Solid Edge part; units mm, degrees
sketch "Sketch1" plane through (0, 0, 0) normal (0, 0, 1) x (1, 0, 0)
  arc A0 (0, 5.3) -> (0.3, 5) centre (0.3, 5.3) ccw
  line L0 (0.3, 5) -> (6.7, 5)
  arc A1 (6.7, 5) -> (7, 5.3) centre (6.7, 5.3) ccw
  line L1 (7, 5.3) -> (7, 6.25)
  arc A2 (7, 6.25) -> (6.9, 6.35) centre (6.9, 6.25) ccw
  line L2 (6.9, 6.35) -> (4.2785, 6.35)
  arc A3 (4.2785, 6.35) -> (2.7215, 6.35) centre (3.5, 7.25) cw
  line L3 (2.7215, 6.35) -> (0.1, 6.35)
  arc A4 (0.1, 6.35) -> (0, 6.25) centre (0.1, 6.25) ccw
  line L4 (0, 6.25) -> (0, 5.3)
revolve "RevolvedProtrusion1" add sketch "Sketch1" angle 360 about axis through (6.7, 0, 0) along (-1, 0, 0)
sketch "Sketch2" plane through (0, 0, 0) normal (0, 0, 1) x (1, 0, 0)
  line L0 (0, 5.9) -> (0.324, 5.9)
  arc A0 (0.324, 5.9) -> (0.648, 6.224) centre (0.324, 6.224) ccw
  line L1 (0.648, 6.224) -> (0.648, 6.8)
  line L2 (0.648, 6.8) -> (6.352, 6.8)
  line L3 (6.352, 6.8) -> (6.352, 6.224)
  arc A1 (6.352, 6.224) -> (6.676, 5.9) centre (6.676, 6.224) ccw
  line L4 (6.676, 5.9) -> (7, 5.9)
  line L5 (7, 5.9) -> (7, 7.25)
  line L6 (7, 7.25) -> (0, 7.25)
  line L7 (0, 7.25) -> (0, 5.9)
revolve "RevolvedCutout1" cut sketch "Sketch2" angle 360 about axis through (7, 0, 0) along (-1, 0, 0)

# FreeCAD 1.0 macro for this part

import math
import FreeCAD as App
import Part
import Sketcher

V = App.Vector

doc = App.newDocument("Part")
params = doc.addObject("Spreadsheet::Sheet", "Params")
for row, (alias, value) in enumerate([
    ("sketch1_radius", "0.3 mm"),
    ("sketch1_radius2", "0.1 mm"),
    ("sketch1_radius3", "1.19 mm"),
    ("sketch1_width", "6.4 mm"),
    ("sketch1_height", "0.95 mm"),
    ("revolution_angle", "360 deg"),
    ("sketch2_width", "7 mm"),
    ("sketch2_height", "1.35 mm"),
    ("groove_angle", "360 deg"),
], start=1):
    params.set(f"A{row}", alias)
    params.set(f"B{row}", "=" + value)
    params.setAlias(f"B{row}", alias)

body = doc.addObject("PartDesign::Body", "Body")

# Sketch on XY plane
sketch1 = body.newObject("Sketcher::SketchObject", "Sketch")
sketch1.AttachmentSupport = (doc.getObject("XY_Plane"), [""])
sketch1.MapMode = "FlatFace"
sketch1.addGeometry([
    Part.LineSegment(V(0, 6.25, 0), V(0, 5.3, 0)),  # 0
    Part.ArcOfCircle(Part.Circle(V(0.3, 5.3, 0), V(0, 0, 1), 0.3), math.radians(180), math.radians(270)),  # 1
    Part.LineSegment(V(0.3, 5, 0), V(6.7, 5, 0)),  # 2
    Part.ArcOfCircle(Part.Circle(V(6.7, 5.3, 0), V(0, 0, 1), 0.3), math.radians(-90), math.radians(0)),  # 3
    Part.LineSegment(V(7, 5.3, 0), V(7, 6.25, 0)),  # 4
    Part.ArcOfCircle(Part.Circle(V(6.9, 6.25, 0), V(0, 0, 1), 0.1), math.radians(0), math.radians(90)),  # 5
    Part.LineSegment(V(6.9, 6.35, 0), V(4.2785, 6.35, 0)),  # 6
    Part.ArcOfCircle(Part.Circle(V(3.5, 7.25, 0), V(0, 0, 1), 1.189984), math.radians(-130.859805), math.radians(-49.140195)),  # 7
    Part.LineSegment(V(2.7215, 6.35, 0), V(0.1, 6.35, 0)),  # 8
    Part.ArcOfCircle(Part.Circle(V(0.1, 6.25, 0), V(0, 0, 1), 0.1), math.radians(90), math.radians(180)),  # 9
], False)
sketch1.addConstraint([
    Sketcher.Constraint("Tangent", 0, 2, 1, 1),
    Sketcher.Constraint("Tangent", 1, 2, 2, 1),
    Sketcher.Constraint("Tangent", 2, 2, 3, 1),
    Sketcher.Constraint("Tangent", 3, 2, 4, 1),
    Sketcher.Constraint("Tangent", 4, 2, 5, 1),
    Sketcher.Constraint("Tangent", 5, 2, 6, 1),
    Sketcher.Constraint("Coincident", 6, 2, 7, 2),
    Sketcher.Constraint("Coincident", 7, 1, 8, 1),
    Sketcher.Constraint("Tangent", 8, 2, 9, 1),
    Sketcher.Constraint("Tangent", 9, 2, 0, 1),
    Sketcher.Constraint("Vertical", 0),
    Sketcher.Constraint("Horizontal", 2),
    Sketcher.Constraint("Vertical", 4),
    Sketcher.Constraint("Horizontal", 6),
    Sketcher.Constraint("Horizontal", 8),
    Sketcher.Constraint("Equal", 1, 3),
    Sketcher.Constraint("Equal", 5, 9),
    Sketcher.Constraint("PointOnObject", 0, 2, -2),
    Sketcher.Constraint("Horizontal", 5, 3, 9, 3),
    Sketcher.Constraint("Equal", 6, 8),
    Sketcher.Constraint("Radius", 1, 0.3),
    Sketcher.Constraint("Radius", 5, 0.1),
    Sketcher.Constraint("Radius", 7, 1.19),
    Sketcher.Constraint("DistanceX", 2, 1, 2, 2, 6.4),
    Sketcher.Constraint("DistanceY", -1, 1, 1, 2, 5.0),
    Sketcher.Constraint("DistanceY", 5, 3, 7, 3, 1.0),
    Sketcher.Constraint("DistanceY", 0, 2, 0, 1, 0.95),
])
sketch1.setExpression("Constraints[20]", "Params.sketch1_radius")
sketch1.setExpression("Constraints[21]", "Params.sketch1_radius2")
sketch1.setExpression("Constraints[22]", "Params.sketch1_radius3")
sketch1.setExpression("Constraints[23]", "Params.sketch1_width")
sketch1.setExpression("Constraints[26]", "Params.sketch1_height")
revolution = body.newObject("PartDesign::Revolution", "Revolution")
revolution.Profile = sketch1
revolution.ReferenceAxis = (sketch1, ["H_Axis"])
revolution.setExpression("Angle", "Params.revolution_angle")

# Sketch on XY plane
sketch2 = body.newObject("Sketcher::SketchObject", "Sketch001")
sketch2.AttachmentSupport = (doc.getObject("XY_Plane"), [""])
sketch2.MapMode = "FlatFace"
sketch2.addGeometry([
    Part.LineSegment(V(0, 7.25, 0), V(0, 5.9, 0)),  # 0
    Part.LineSegment(V(0, 5.9, 0), V(0.324, 5.9, 0)),  # 1
    Part.ArcOfCircle(Part.Circle(V(0.324, 6.224, 0), V(0, 0, 1), 0.324), math.radians(-90), math.radians(0)),  # 2
    Part.LineSegment(V(0.648, 6.224, 0), V(0.648, 6.8, 0)),  # 3
    Part.LineSegment(V(0.648, 6.8, 0), V(6.352, 6.8, 0)),  # 4
    Part.LineSegment(V(6.352, 6.8, 0), V(6.352, 6.224, 0)),  # 5
    Part.ArcOfCircle(Part.Circle(V(6.676, 6.224, 0), V(0, 0, 1), 0.324), math.radians(180), math.radians(270)),  # 6
    Part.LineSegment(V(6.676, 5.9, 0), V(7, 5.9, 0)),  # 7
    Part.LineSegment(V(7, 5.9, 0), V(7, 7.25, 0)),  # 8
    Part.LineSegment(V(7, 7.25, 0), V(0, 7.25, 0)),  # 9
], False)
sketch2.addConstraint([
    Sketcher.Constraint("Coincident", 0, 2, 1, 1),
    Sketcher.Constraint("Tangent", 1, 2, 2, 1),
    Sketcher.Constraint("Tangent", 2, 2, 3, 1),
    Sketcher.Constraint("Coincident", 3, 2, 4, 1),
    Sketcher.Constraint("Coincident", 4, 2, 5, 1),
    Sketcher.Constraint("Tangent", 5, 2, 6, 1),
    Sketcher.Constraint("Tangent", 6, 2, 7, 1),
    Sketcher.Constraint("Coincident", 7, 2, 8, 1),
    Sketcher.Constraint("Coincident", 8, 2, 9, 1),
    Sketcher.Constraint("Coincident", 9, 2, 0, 1),
    Sketcher.Constraint("Vertical", 0),
    Sketcher.Constraint("Horizontal", 1),
    Sketcher.Constraint("Vertical", 3),
    Sketcher.Constraint("Horizontal", 4),
    Sketcher.Constraint("Vertical", 5),
    Sketcher.Constraint("Horizontal", 7),
    Sketcher.Constraint("Vertical", 8),
    Sketcher.Constraint("Horizontal", 9),
    Sketcher.Constraint("Equal", 2, 6),
    Sketcher.Constraint("PointOnObject", 0, 2, -2),
    Sketcher.Constraint("Horizontal", 2, 3, 6, 3),
    Sketcher.Constraint("Equal", 1, 7),
    Sketcher.Constraint("DistanceX", 9, 2, 9, 1, 7.0),
    Sketcher.Constraint("Radius", 2, 0.324),
    Sketcher.Constraint("DistanceY", 0, 2, 0, 1, 1.35),
    Sketcher.Constraint("DistanceY", -1, 1, 0, 2, 5.9),
    Sketcher.Constraint("DistanceY", -1, 1, 3, 2, 6.8),
    Sketcher.Constraint("DistanceX", 1, 1, 1, 2, 0.324),
])
sketch2.setExpression("Constraints[22]", "Params.sketch2_width")
sketch2.setExpression("Constraints[24]", "Params.sketch2_height")
groove = body.newObject("PartDesign::Groove", "Groove")
groove.Profile = sketch2
groove.ReferenceAxis = (sketch2, ["H_Axis"])
groove.setExpression("Angle", "Params.groove_angle")

doc.recompute()
